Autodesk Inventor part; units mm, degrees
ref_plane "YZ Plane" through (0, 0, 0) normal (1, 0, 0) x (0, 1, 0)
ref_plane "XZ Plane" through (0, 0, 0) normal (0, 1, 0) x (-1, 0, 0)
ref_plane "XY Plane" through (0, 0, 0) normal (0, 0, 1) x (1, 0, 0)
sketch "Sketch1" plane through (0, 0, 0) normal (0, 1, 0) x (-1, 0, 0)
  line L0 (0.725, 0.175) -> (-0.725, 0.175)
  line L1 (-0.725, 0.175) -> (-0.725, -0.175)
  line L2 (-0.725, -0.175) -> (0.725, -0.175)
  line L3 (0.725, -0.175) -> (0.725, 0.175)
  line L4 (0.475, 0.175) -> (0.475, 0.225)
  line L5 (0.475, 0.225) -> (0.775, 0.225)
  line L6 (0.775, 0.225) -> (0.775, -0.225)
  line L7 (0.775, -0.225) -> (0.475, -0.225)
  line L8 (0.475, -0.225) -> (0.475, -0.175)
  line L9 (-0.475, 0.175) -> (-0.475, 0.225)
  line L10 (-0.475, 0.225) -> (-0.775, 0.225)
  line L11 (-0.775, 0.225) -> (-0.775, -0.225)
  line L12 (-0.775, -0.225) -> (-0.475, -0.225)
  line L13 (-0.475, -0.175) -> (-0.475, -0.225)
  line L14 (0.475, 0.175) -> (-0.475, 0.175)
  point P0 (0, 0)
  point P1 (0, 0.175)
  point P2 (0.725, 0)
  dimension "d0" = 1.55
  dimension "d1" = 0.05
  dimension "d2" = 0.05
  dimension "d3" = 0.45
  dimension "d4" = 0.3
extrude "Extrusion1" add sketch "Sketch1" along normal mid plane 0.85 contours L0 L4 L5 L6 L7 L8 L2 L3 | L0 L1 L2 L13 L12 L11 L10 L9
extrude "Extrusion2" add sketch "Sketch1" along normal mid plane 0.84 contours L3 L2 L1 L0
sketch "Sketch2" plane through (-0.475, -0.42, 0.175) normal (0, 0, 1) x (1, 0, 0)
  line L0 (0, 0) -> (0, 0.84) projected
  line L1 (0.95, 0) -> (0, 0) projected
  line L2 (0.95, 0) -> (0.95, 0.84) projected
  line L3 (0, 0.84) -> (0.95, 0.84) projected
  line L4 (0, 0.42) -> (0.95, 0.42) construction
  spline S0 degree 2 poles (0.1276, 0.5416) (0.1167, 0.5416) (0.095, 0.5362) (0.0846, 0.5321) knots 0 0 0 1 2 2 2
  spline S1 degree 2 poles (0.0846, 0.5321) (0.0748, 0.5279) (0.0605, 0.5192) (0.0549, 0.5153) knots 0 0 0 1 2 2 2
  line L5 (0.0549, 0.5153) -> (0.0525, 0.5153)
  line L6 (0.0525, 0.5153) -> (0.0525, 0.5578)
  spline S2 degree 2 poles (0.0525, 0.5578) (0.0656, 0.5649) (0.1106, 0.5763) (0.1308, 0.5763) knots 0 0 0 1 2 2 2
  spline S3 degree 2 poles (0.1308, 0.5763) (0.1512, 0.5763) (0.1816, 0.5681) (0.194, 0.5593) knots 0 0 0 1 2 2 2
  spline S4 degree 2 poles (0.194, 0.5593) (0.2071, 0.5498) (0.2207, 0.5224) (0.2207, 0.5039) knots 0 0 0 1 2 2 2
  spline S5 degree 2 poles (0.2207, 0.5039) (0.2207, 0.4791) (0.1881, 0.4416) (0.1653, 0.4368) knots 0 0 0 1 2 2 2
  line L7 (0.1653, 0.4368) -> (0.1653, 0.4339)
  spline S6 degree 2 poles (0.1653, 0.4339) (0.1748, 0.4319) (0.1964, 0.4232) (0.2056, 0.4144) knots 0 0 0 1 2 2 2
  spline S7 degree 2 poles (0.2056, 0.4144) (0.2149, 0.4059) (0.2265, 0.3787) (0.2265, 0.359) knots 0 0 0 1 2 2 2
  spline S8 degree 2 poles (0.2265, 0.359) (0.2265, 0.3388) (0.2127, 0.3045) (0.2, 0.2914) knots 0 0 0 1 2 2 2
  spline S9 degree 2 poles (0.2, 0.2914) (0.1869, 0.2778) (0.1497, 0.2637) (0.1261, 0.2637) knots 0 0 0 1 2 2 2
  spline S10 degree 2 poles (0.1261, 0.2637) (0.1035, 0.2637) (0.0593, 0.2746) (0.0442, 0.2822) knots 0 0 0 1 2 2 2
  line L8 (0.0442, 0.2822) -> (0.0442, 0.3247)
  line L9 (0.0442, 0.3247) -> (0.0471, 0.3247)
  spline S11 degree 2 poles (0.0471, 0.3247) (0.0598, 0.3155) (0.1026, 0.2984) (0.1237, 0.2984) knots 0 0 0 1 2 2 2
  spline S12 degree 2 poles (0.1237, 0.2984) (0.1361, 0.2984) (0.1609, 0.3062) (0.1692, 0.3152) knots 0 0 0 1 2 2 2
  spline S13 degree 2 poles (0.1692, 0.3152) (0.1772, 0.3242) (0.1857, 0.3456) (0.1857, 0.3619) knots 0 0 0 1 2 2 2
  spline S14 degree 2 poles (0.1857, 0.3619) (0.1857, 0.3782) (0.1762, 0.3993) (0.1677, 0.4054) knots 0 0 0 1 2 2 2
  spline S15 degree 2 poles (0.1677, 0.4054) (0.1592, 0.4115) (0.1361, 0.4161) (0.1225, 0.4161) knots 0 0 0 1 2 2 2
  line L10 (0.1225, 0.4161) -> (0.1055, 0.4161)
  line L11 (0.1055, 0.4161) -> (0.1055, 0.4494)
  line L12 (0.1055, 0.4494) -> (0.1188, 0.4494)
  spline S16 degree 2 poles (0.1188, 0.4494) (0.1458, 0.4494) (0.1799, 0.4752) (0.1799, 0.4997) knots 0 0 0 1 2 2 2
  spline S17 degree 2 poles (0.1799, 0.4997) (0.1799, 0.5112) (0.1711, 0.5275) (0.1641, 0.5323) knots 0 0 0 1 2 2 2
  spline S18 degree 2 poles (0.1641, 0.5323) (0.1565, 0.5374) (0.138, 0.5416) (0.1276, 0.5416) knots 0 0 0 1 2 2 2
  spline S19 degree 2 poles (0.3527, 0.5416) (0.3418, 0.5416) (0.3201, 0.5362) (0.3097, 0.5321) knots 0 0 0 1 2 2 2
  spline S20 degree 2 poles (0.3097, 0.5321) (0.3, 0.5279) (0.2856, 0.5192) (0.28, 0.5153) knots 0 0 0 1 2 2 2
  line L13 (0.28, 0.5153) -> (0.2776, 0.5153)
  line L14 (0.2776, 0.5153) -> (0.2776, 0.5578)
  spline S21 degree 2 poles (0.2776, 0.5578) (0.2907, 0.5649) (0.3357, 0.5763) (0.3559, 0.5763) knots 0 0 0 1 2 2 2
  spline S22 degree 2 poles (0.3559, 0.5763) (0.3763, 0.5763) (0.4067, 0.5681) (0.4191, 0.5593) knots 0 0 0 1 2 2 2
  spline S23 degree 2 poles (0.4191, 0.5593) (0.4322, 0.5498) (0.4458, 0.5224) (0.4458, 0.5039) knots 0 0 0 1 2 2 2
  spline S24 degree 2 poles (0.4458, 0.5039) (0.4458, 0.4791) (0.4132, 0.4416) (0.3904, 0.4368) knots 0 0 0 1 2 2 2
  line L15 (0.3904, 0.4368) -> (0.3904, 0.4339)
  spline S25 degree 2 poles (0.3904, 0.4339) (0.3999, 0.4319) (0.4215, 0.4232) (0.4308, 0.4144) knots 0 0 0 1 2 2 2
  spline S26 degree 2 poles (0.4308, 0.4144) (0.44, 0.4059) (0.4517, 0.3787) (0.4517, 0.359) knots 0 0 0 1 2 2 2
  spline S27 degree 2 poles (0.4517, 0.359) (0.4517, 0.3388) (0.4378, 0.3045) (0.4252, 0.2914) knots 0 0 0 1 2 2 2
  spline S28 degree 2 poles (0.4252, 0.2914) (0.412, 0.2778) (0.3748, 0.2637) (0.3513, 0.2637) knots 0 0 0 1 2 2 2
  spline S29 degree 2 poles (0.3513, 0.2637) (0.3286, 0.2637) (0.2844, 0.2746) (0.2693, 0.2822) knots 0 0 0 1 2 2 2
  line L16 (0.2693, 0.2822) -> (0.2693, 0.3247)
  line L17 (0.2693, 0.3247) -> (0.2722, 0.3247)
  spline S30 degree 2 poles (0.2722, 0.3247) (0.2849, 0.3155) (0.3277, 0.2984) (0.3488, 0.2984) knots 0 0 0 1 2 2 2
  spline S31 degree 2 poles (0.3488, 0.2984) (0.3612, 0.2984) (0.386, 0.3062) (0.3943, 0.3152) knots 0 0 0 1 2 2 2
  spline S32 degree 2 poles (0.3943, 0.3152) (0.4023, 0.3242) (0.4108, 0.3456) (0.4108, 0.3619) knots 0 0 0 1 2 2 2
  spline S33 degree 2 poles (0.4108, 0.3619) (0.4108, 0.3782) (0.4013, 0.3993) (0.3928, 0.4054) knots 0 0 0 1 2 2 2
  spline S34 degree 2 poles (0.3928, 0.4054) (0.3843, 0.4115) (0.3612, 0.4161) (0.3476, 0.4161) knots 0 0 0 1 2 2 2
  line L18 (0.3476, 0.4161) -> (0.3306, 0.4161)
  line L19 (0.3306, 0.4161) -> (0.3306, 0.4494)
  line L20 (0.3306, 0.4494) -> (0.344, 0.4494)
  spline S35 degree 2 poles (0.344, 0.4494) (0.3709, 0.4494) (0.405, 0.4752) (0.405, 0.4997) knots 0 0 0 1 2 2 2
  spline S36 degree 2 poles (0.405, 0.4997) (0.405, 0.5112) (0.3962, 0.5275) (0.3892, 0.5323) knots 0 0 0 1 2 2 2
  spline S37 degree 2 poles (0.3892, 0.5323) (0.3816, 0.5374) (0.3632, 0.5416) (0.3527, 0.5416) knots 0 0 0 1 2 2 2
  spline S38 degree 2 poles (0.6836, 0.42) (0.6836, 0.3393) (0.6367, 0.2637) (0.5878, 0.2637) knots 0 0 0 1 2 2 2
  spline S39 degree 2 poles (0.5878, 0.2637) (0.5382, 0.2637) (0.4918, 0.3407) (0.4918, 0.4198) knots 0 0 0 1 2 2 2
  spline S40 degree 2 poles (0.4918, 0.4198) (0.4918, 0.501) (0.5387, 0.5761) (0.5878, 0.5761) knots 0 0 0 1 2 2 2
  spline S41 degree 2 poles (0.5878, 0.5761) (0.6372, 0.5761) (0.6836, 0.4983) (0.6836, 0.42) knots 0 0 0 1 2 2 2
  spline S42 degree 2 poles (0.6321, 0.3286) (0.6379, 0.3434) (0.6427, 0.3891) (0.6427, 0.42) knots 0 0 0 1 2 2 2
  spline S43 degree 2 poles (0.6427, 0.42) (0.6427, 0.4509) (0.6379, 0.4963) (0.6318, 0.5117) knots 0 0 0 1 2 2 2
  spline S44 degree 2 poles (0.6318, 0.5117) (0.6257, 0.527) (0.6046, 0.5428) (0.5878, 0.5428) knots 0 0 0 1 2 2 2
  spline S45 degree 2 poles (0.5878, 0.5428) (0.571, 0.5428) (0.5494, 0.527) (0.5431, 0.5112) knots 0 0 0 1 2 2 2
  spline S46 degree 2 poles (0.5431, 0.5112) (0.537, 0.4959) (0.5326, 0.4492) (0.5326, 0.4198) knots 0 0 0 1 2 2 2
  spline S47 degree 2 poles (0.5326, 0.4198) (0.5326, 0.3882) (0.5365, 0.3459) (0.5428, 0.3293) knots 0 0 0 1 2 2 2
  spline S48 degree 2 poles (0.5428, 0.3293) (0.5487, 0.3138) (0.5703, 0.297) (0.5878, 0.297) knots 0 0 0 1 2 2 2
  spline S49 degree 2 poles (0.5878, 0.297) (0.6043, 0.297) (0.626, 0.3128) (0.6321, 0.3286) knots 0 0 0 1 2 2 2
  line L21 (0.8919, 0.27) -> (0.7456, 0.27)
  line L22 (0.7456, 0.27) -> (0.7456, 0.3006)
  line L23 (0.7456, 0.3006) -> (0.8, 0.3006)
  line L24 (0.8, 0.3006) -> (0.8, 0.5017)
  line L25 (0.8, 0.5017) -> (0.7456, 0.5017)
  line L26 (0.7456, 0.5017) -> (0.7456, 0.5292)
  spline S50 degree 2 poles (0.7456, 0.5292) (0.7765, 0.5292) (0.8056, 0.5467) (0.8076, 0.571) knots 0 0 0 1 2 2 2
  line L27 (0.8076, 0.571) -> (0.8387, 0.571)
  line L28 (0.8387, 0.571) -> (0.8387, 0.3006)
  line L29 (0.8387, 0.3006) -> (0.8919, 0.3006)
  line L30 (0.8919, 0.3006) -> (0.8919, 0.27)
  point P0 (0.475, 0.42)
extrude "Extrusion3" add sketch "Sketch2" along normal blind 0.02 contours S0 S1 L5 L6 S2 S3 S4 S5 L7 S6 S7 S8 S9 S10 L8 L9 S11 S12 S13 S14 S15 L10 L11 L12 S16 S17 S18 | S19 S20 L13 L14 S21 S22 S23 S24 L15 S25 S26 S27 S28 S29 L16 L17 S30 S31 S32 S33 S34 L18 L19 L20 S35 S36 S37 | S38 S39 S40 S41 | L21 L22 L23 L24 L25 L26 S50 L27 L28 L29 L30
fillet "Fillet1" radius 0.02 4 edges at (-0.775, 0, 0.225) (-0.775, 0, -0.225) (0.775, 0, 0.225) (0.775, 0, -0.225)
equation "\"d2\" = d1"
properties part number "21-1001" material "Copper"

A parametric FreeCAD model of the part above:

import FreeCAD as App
import Part
import Sketcher


def edges_at(feature, points):
    """Names of the edges that pass closest to the given points."""
    edges = feature.Shape.Edges
    near = lambda p: min(range(len(edges)), key=lambda i: edges[i].distToShape(Part.Vertex(*p))[0])
    return sorted({f"Edge{near(p) + 1}" for p in points})


def add_polygon(sketch, points):
    """Adds a closed chain of lines whose ends are joined by coincident constraints."""
    first, n = sketch.GeometryCount, len(points)
    for a, b in zip(points, points[1:] + points[:1]):
        sketch.addGeometry(Part.LineSegment(App.Vector(*a, 0), App.Vector(*b, 0)), False)
    for i in range(n):
        sketch.addConstraint(Sketcher.Constraint("Coincident", first + i, 2, first + (i + 1) % n, 1))

doc = App.newDocument("Part")
body = doc.addObject("PartDesign::Body", "Body")
body.AllowCompound = True

# Sketch on XZ plane
sketch1 = doc.addObject("Sketcher::SketchObject", "Sketch")
body.addObject(sketch1)
sketch1.AttachmentSupport = (doc.XZ_Plane, [""])
sketch1.MapMode = "FlatFace"
add_polygon(sketch1, [(-0.47, 0.17), (-0.72, 0.17), (-0.72, -0.17), (-0.47, -0.17), (-0.47, -0.23), (-0.78, -0.23), (-0.78, 0.23), (-0.47, 0.23)])  # lines 0-7
add_polygon(sketch1, [(0.72, 0.17), (0.47, 0.17), (0.47, 0.23), (0.78, 0.23), (0.78, -0.23), (0.47, -0.23), (0.47, -0.17), (0.72, -0.17)])  # lines 8-15
sketch1.addConstraint(Sketcher.Constraint("Horizontal", 0))
sketch1.addConstraint(Sketcher.Constraint("Vertical", 1))
sketch1.addConstraint(Sketcher.Constraint("Horizontal", 2))
sketch1.addConstraint(Sketcher.Constraint("Vertical", 3))
sketch1.addConstraint(Sketcher.Constraint("Horizontal", 4))
sketch1.addConstraint(Sketcher.Constraint("Vertical", 5))
sketch1.addConstraint(Sketcher.Constraint("Horizontal", 6))
sketch1.addConstraint(Sketcher.Constraint("Vertical", 7))
sketch1.addConstraint(Sketcher.Constraint("Horizontal", 8))
sketch1.addConstraint(Sketcher.Constraint("Vertical", 9))
sketch1.addConstraint(Sketcher.Constraint("Horizontal", 10))
sketch1.addConstraint(Sketcher.Constraint("Vertical", 11))
sketch1.addConstraint(Sketcher.Constraint("Horizontal", 12))
sketch1.addConstraint(Sketcher.Constraint("Vertical", 13))
sketch1.addConstraint(Sketcher.Constraint("Horizontal", 14))
sketch1.addConstraint(Sketcher.Constraint("Vertical", 15))
sketch1.addConstraint(Sketcher.Constraint("Symmetric", 2, 2, 8, 2, -1, 1))
sketch1.addConstraint(Sketcher.Constraint("Symmetric", 4, 2, 10, 2, -1, 1))
sketch1.addConstraint(Sketcher.Constraint("Symmetric", 6, 2, 12, 2, -1, 1))
sketch1.addConstraint(Sketcher.Constraint("Symmetric", 0, 2, 14, 2, -1, 1))
sketch1.addConstraint(Sketcher.Constraint("Symmetric", 7, 2, 8, 2, -2))
sketch1.addConstraint(Sketcher.Constraint("Horizontal", 6, 2, 9, 2))
sketch1.addConstraint(Sketcher.Constraint("DistanceX", 4, 2, 4, 1, 0.3))
sketch1.addConstraint(Sketcher.Constraint("DistanceY", 3, 2, 3, 1, 0.05))
sketch1.addConstraint(Sketcher.Constraint("DistanceY", 5, 1, 5, 2, 0.45))
sketch1.addConstraint(Sketcher.Constraint("DistanceX", 4, 2, 1, 2, 0.05))
sketch1.addConstraint(Sketcher.Constraint("DistanceX", 0, 2, 8, 2, 1.2))
pad1 = doc.addObject("PartDesign::Pad", "Pad")
body.addObject(pad1)
pad1.Profile = sketch1
pad1.Length = 0.85
pad1.Midplane = True

# Sketch on XZ plane
sketch2 = doc.addObject("Sketcher::SketchObject", "Sketch001")
body.addObject(sketch2)
sketch2.AttachmentSupport = (doc.XZ_Plane, [""])
sketch2.MapMode = "FlatFace"
add_polygon(sketch2, [(-0.72, -0.17), (-0.72, 0.17), (0.72, 0.17), (0.72, -0.17)])  # lines 0-3
sketch2.addConstraint(Sketcher.Constraint("Vertical", 0))
sketch2.addConstraint(Sketcher.Constraint("Horizontal", 1))
sketch2.addConstraint(Sketcher.Constraint("Vertical", 2))
sketch2.addConstraint(Sketcher.Constraint("Horizontal", 3))
sketch2.addConstraint(Sketcher.Constraint("Symmetric", 0, 2, 2, 2, -1, 1))
sketch2.addConstraint(Sketcher.Constraint("DistanceX", 1, 1, 1, 2, 1.45))
sketch2.addConstraint(Sketcher.Constraint("DistanceY", 0, 1, 0, 2, 0.35))
pad2 = doc.addObject("PartDesign::Pad", "Pad001")
body.addObject(pad2)
pad2.Profile = sketch2
pad2.Length = 0.84
pad2.Midplane = True

# Sketch on XY plane
sketch3 = doc.addObject("Sketcher::SketchObject", "Sketch002")
body.addObject(sketch3)
sketch3.AttachmentSupport = (doc.XY_Plane, [""])
sketch3.MapMode = "FlatFace"
sketch3.AttachmentOffset = App.Placement(App.Vector(0, 0, 0.175), App.Rotation())
sketch3.addGeometry(Part.BSplineCurve([App.Vector(-0.3474, 0.1216, 0), App.Vector(-0.3583, 0.1216, 0), App.Vector(-0.38, 0.1162, 0), App.Vector(-0.3904, 0.1121, 0)], [3, 1, 3], [0, 1, 2], False, 2, [1, 1, 1, 1], False), False)
sketch3.addGeometry(Part.BSplineCurve([App.Vector(-0.3109, 0.1123, 0), App.Vector(-0.3185, 0.1174, 0), App.Vector(-0.337, 0.1216, 0), App.Vector(-0.3474, 0.1216, 0)], [3, 1, 3], [0, 1, 2], False, 2, [1, 1, 1, 1], False), False)
sketch3.addGeometry(Part.BSplineCurve([App.Vector(-0.2951, 0.0797, 0), App.Vector(-0.2951, 0.0912, 0), App.Vector(-0.3039, 0.1075, 0), App.Vector(-0.3109, 0.1123, 0)], [3, 1, 3], [0, 1, 2], False, 2, [1, 1, 1, 1], False), False)
sketch3.addGeometry(Part.BSplineCurve([App.Vector(-0.3562, 0.0294, 0), App.Vector(-0.3292, 0.0294, 0), App.Vector(-0.2951, 0.0552, 0), App.Vector(-0.2951, 0.0797, 0)], [3, 1, 3], [0, 1, 2], False, 2, [1, 1, 1, 1], False), False)
sketch3.addGeometry(Part.LineSegment(App.Vector(-0.3562, 0.0294, 0), App.Vector(-0.3695, 0.0294, 0)), False)
sketch3.addGeometry(Part.LineSegment(App.Vector(-0.3695, 0.0294, 0), App.Vector(-0.3695, -0.0039, 0)), False)
sketch3.addGeometry(Part.LineSegment(App.Vector(-0.3695, -0.0039, 0), App.Vector(-0.3525, -0.0039, 0)), False)
sketch3.addGeometry(Part.BSplineCurve([App.Vector(-0.3073, -0.0146, 0), App.Vector(-0.3158, -0.0085, 0), App.Vector(-0.3389, -0.0039, 0), App.Vector(-0.3525, -0.0039, 0)], [3, 1, 3], [0, 1, 2], False, 2, [1, 1, 1, 1], False), False)
sketch3.addGeometry(Part.BSplineCurve([App.Vector(-0.2893, -0.0581, 0), App.Vector(-0.2893, -0.0418, 0), App.Vector(-0.2988, -0.0207, 0), App.Vector(-0.3073, -0.0146, 0)], [3, 1, 3], [0, 1, 2], False, 2, [1, 1, 1, 1], False), False)
sketch3.addGeometry(Part.BSplineCurve([App.Vector(-0.3058, -0.1048, 0), App.Vector(-0.2978, -0.0958, 0), App.Vector(-0.2893, -0.0744, 0), App.Vector(-0.2893, -0.0581, 0)], [3, 1, 3], [0, 1, 2], False, 2, [1, 1, 1, 1], False), False)
sketch3.addGeometry(Part.BSplineCurve([App.Vector(-0.3513, -0.1216, 0), App.Vector(-0.3389, -0.1216, 0), App.Vector(-0.3141, -0.1138, 0), App.Vector(-0.3058, -0.1048, 0)], [3, 1, 3], [0, 1, 2], False, 2, [1, 1, 1, 1], False), False)
sketch3.addGeometry(Part.BSplineCurve([App.Vector(-0.4279, -0.0953, 0), App.Vector(-0.4152, -0.1045, 0), App.Vector(-0.3724, -0.1216, 0), App.Vector(-0.3513, -0.1216, 0)], [3, 1, 3], [0, 1, 2], False, 2, [1, 1, 1, 1], False), False)
sketch3.addGeometry(Part.LineSegment(App.Vector(-0.4279, -0.0953, 0), App.Vector(-0.4308, -0.0953, 0)), False)
sketch3.addGeometry(Part.LineSegment(App.Vector(-0.4308, -0.0953, 0), App.Vector(-0.4308, -0.1378, 0)), False)
sketch3.addGeometry(Part.BSplineCurve([App.Vector(-0.3489, -0.1563, 0), App.Vector(-0.3715, -0.1563, 0), App.Vector(-0.4157, -0.1454, 0), App.Vector(-0.4308, -0.1378, 0)], [3, 1, 3], [0, 1, 2], False, 2, [1, 1, 1, 1], False), False)
sketch3.addGeometry(Part.BSplineCurve([App.Vector(-0.275, -0.1286, 0), App.Vector(-0.2881, -0.1422, 0), App.Vector(-0.3253, -0.1563, 0), App.Vector(-0.3489, -0.1563, 0)], [3, 1, 3], [0, 1, 2], False, 2, [1, 1, 1, 1], False), False)
sketch3.addGeometry(Part.BSplineCurve([App.Vector(-0.2485, -0.061, 0), App.Vector(-0.2485, -0.0812, 0), App.Vector(-0.2623, -0.1155, 0), App.Vector(-0.275, -0.1286, 0)], [3, 1, 3], [0, 1, 2], False, 2, [1, 1, 1, 1], False), False)
sketch3.addGeometry(Part.BSplineCurve([App.Vector(-0.2694, -0.0056, 0), App.Vector(-0.2601, -0.0141, 0), App.Vector(-0.2485, -0.0413, 0), App.Vector(-0.2485, -0.061, 0)], [3, 1, 3], [0, 1, 2], False, 2, [1, 1, 1, 1], False), False)
sketch3.addGeometry(Part.BSplineCurve([App.Vector(-0.3097, 0.0139, 0), App.Vector(-0.3002, 0.0119, 0), App.Vector(-0.2786, 0.0032, 0), App.Vector(-0.2694, -0.0056, 0)], [3, 1, 3], [0, 1, 2], False, 2, [1, 1, 1, 1], False), False)
sketch3.addGeometry(Part.LineSegment(App.Vector(-0.3097, 0.0139, 0), App.Vector(-0.3097, 0.0168, 0)), False)
sketch3.addGeometry(Part.BSplineCurve([App.Vector(-0.2543, 0.0839, 0), App.Vector(-0.2543, 0.0591, 0), App.Vector(-0.2869, 0.0216, 0), App.Vector(-0.3097, 0.0168, 0)], [3, 1, 3], [0, 1, 2], False, 2, [1, 1, 1, 1], False), False)
sketch3.addGeometry(Part.BSplineCurve([App.Vector(-0.281, 0.1393, 0), App.Vector(-0.2679, 0.1298, 0), App.Vector(-0.2543, 0.1024, 0), App.Vector(-0.2543, 0.0839, 0)], [3, 1, 3], [0, 1, 2], False, 2, [1, 1, 1, 1], False), False)
sketch3.addGeometry(Part.BSplineCurve([App.Vector(-0.3442, 0.1563, 0), App.Vector(-0.3238, 0.1563, 0), App.Vector(-0.2934, 0.1481, 0), App.Vector(-0.281, 0.1393, 0)], [3, 1, 3], [0, 1, 2], False, 2, [1, 1, 1, 1], False), False)
sketch3.addGeometry(Part.BSplineCurve([App.Vector(-0.4225, 0.1378, 0), App.Vector(-0.4094, 0.1449, 0), App.Vector(-0.3644, 0.1563, 0), App.Vector(-0.3442, 0.1563, 0)], [3, 1, 3], [0, 1, 2], False, 2, [1, 1, 1, 1], False), False)
sketch3.addGeometry(Part.LineSegment(App.Vector(-0.4225, 0.1378, 0), App.Vector(-0.4225, 0.0953, 0)), False)
sketch3.addGeometry(Part.LineSegment(App.Vector(-0.4225, 0.0953, 0), App.Vector(-0.4201, 0.0953, 0)), False)
sketch3.addGeometry(Part.BSplineCurve([App.Vector(-0.3904, 0.1121, 0), App.Vector(-0.4002, 0.1079, 0), App.Vector(-0.4145, 0.0992, 0), App.Vector(-0.4201, 0.0953, 0)], [3, 1, 3], [0, 1, 2], False, 2, [1, 1, 1, 1], False), False)
sketch3.addGeometry(Part.BSplineCurve([App.Vector(-0.1223, 0.1216, 0), App.Vector(-0.1332, 0.1216, 0), App.Vector(-0.1549, 0.1162, 0), App.Vector(-0.1653, 0.1121, 0)], [3, 1, 3], [0, 1, 2], False, 2, [1, 1, 1, 1], False), False)
sketch3.addGeometry(Part.BSplineCurve([App.Vector(-0.0858, 0.1123, 0), App.Vector(-0.0934, 0.1174, 0), App.Vector(-0.1118, 0.1216, 0), App.Vector(-0.1223, 0.1216, 0)], [3, 1, 3], [0, 1, 2], False, 2, [1, 1, 1, 1], False), False)
sketch3.addGeometry(Part.BSplineCurve([App.Vector(-0.07, 0.0797, 0), App.Vector(-0.07, 0.0912, 0), App.Vector(-0.0788, 0.1075, 0), App.Vector(-0.0858, 0.1123, 0)], [3, 1, 3], [0, 1, 2], False, 2, [1, 1, 1, 1], False), False)
sketch3.addGeometry(Part.BSplineCurve([App.Vector(-0.131, 0.0294, 0), App.Vector(-0.1041, 0.0294, 0), App.Vector(-0.07, 0.0552, 0), App.Vector(-0.07, 0.0797, 0)], [3, 1, 3], [0, 1, 2], False, 2, [1, 1, 1, 1], False), False)
sketch3.addGeometry(Part.LineSegment(App.Vector(-0.131, 0.0294, 0), App.Vector(-0.1444, 0.0294, 0)), False)
sketch3.addGeometry(Part.LineSegment(App.Vector(-0.1444, 0.0294, 0), App.Vector(-0.1444, -0.0039, 0)), False)
sketch3.addGeometry(Part.LineSegment(App.Vector(-0.1444, -0.0039, 0), App.Vector(-0.1274, -0.0039, 0)), False)
sketch3.addGeometry(Part.BSplineCurve([App.Vector(-0.0822, -0.0146, 0), App.Vector(-0.0907, -0.0085, 0), App.Vector(-0.1138, -0.0039, 0), App.Vector(-0.1274, -0.0039, 0)], [3, 1, 3], [0, 1, 2], False, 2, [1, 1, 1, 1], False), False)
sketch3.addGeometry(Part.BSplineCurve([App.Vector(-0.0642, -0.0581, 0), App.Vector(-0.0642, -0.0418, 0), App.Vector(-0.0737, -0.0207, 0), App.Vector(-0.0822, -0.0146, 0)], [3, 1, 3], [0, 1, 2], False, 2, [1, 1, 1, 1], False), False)
sketch3.addGeometry(Part.BSplineCurve([App.Vector(-0.0807, -0.1048, 0), App.Vector(-0.0727, -0.0958, 0), App.Vector(-0.0642, -0.0744, 0), App.Vector(-0.0642, -0.0581, 0)], [3, 1, 3], [0, 1, 2], False, 2, [1, 1, 1, 1], False), False)
sketch3.addGeometry(Part.BSplineCurve([App.Vector(-0.1262, -0.1216, 0), App.Vector(-0.1138, -0.1216, 0), App.Vector(-0.089, -0.1138, 0), App.Vector(-0.0807, -0.1048, 0)], [3, 1, 3], [0, 1, 2], False, 2, [1, 1, 1, 1], False), False)
sketch3.addGeometry(Part.BSplineCurve([App.Vector(-0.2028, -0.0953, 0), App.Vector(-0.1901, -0.1045, 0), App.Vector(-0.1473, -0.1216, 0), App.Vector(-0.1262, -0.1216, 0)], [3, 1, 3], [0, 1, 2], False, 2, [1, 1, 1, 1], False), False)
sketch3.addGeometry(Part.LineSegment(App.Vector(-0.2028, -0.0953, 0), App.Vector(-0.2057, -0.0953, 0)), False)
sketch3.addGeometry(Part.LineSegment(App.Vector(-0.2057, -0.0953, 0), App.Vector(-0.2057, -0.1378, 0)), False)
sketch3.addGeometry(Part.BSplineCurve([App.Vector(-0.1237, -0.1563, 0), App.Vector(-0.1464, -0.1563, 0), App.Vector(-0.1906, -0.1454, 0), App.Vector(-0.2057, -0.1378, 0)], [3, 1, 3], [0, 1, 2], False, 2, [1, 1, 1, 1], False), False)
sketch3.addGeometry(Part.BSplineCurve([App.Vector(-0.0498, -0.1286, 0), App.Vector(-0.063, -0.1422, 0), App.Vector(-0.1002, -0.1563, 0), App.Vector(-0.1237, -0.1563, 0)], [3, 1, 3], [0, 1, 2], False, 2, [1, 1, 1, 1], False), False)
sketch3.addGeometry(Part.BSplineCurve([App.Vector(-0.0233, -0.061, 0), App.Vector(-0.0233, -0.0812, 0), App.Vector(-0.0372, -0.1155, 0), App.Vector(-0.0498, -0.1286, 0)], [3, 1, 3], [0, 1, 2], False, 2, [1, 1, 1, 1], False), False)
sketch3.addGeometry(Part.BSplineCurve([App.Vector(-0.0442, -0.0056, 0), App.Vector(-0.035, -0.0141, 0), App.Vector(-0.0233, -0.0413, 0), App.Vector(-0.0233, -0.061, 0)], [3, 1, 3], [0, 1, 2], False, 2, [1, 1, 1, 1], False), False)
sketch3.addGeometry(Part.BSplineCurve([App.Vector(-0.0846, 0.0139, 0), App.Vector(-0.0751, 0.0119, 0), App.Vector(-0.0535, 0.0032, 0), App.Vector(-0.0442, -0.0056, 0)], [3, 1, 3], [0, 1, 2], False, 2, [1, 1, 1, 1], False), False)
sketch3.addGeometry(Part.LineSegment(App.Vector(-0.0846, 0.0139, 0), App.Vector(-0.0846, 0.0168, 0)), False)
sketch3.addGeometry(Part.BSplineCurve([App.Vector(-0.0292, 0.0839, 0), App.Vector(-0.0292, 0.0591, 0), App.Vector(-0.0618, 0.0216, 0), App.Vector(-0.0846, 0.0168, 0)], [3, 1, 3], [0, 1, 2], False, 2, [1, 1, 1, 1], False), False)
sketch3.addGeometry(Part.BSplineCurve([App.Vector(-0.0559, 0.1393, 0), App.Vector(-0.0428, 0.1298, 0), App.Vector(-0.0292, 0.1024, 0), App.Vector(-0.0292, 0.0839, 0)], [3, 1, 3], [0, 1, 2], False, 2, [1, 1, 1, 1], False), False)
sketch3.addGeometry(Part.BSplineCurve([App.Vector(-0.1191, 0.1563, 0), App.Vector(-0.0987, 0.1563, 0), App.Vector(-0.0683, 0.1481, 0), App.Vector(-0.0559, 0.1393, 0)], [3, 1, 3], [0, 1, 2], False, 2, [1, 1, 1, 1], False), False)
sketch3.addGeometry(Part.BSplineCurve([App.Vector(-0.1974, 0.1378, 0), App.Vector(-0.1843, 0.1449, 0), App.Vector(-0.1393, 0.1563, 0), App.Vector(-0.1191, 0.1563, 0)], [3, 1, 3], [0, 1, 2], False, 2, [1, 1, 1, 1], False), False)
sketch3.addGeometry(Part.LineSegment(App.Vector(-0.1974, 0.1378, 0), App.Vector(-0.1974, 0.0953, 0)), False)
sketch3.addGeometry(Part.LineSegment(App.Vector(-0.1974, 0.0953, 0), App.Vector(-0.195, 0.0953, 0)), False)
sketch3.addGeometry(Part.BSplineCurve([App.Vector(-0.1653, 0.1121, 0), App.Vector(-0.175, 0.1079, 0), App.Vector(-0.1894, 0.0992, 0), App.Vector(-0.195, 0.0953, 0)], [3, 1, 3], [0, 1, 2], False, 2, [1, 1, 1, 1], False), False)
sketch3.addGeometry(Part.BSplineCurve([App.Vector(0.2086, 0, 0), App.Vector(0.2086, -0.0807, 0), App.Vector(0.1617, -0.1563, 0), App.Vector(0.1128, -0.1563, 0)], [3, 1, 3], [0, 1, 2], False, 2, [1, 1, 1, 1], False), False)
sketch3.addGeometry(Part.BSplineCurve([App.Vector(0.1128, 0.1561, 0), App.Vector(0.1622, 0.1561, 0), App.Vector(0.2086, 0.0783, 0), App.Vector(0.2086, 0, 0)], [3, 1, 3], [0, 1, 2], False, 2, [1, 1, 1, 1], False), False)
sketch3.addGeometry(Part.BSplineCurve([App.Vector(0.0168, -0.0002, 0), App.Vector(0.0168, 0.081, 0), App.Vector(0.0637, 0.1561, 0), App.Vector(0.1128, 0.1561, 0)], [3, 1, 3], [0, 1, 2], False, 2, [1, 1, 1, 1], False), False)
sketch3.addGeometry(Part.BSplineCurve([App.Vector(0.1128, -0.1563, 0), App.Vector(0.0632, -0.1563, 0), App.Vector(0.0168, -0.0793, 0), App.Vector(0.0168, -0.0002, 0)], [3, 1, 3], [0, 1, 2], False, 2, [1, 1, 1, 1], False), False)
sketch3.addGeometry(Part.BSplineCurve([App.Vector(0.1571, -0.0914, 0), App.Vector(0.1629, -0.0766, 0), App.Vector(0.1677, -0.0309, 0), App.Vector(0.1677, 0, 0)], [3, 1, 3], [0, 1, 2], False, 2, [1, 1, 1, 1], False), False)
sketch3.addGeometry(Part.BSplineCurve([App.Vector(0.1128, -0.123, 0), App.Vector(0.1293, -0.123, 0), App.Vector(0.151, -0.1072, 0), App.Vector(0.1571, -0.0914, 0)], [3, 1, 3], [0, 1, 2], False, 2, [1, 1, 1, 1], False), False)
sketch3.addGeometry(Part.BSplineCurve([App.Vector(0.0678, -0.0907, 0), App.Vector(0.0737, -0.1062, 0), App.Vector(0.0953, -0.123, 0), App.Vector(0.1128, -0.123, 0)], [3, 1, 3], [0, 1, 2], False, 2, [1, 1, 1, 1], False), False)
sketch3.addGeometry(Part.BSplineCurve([App.Vector(0.0576, -0.0002, 0), App.Vector(0.0576, -0.0318, 0), App.Vector(0.0615, -0.0741, 0), App.Vector(0.0678, -0.0907, 0)], [3, 1, 3], [0, 1, 2], False, 2, [1, 1, 1, 1], False), False)
sketch3.addGeometry(Part.BSplineCurve([App.Vector(0.0681, 0.0912, 0), App.Vector(0.062, 0.0759, 0), App.Vector(0.0576, 0.0292, 0), App.Vector(0.0576, -0.0002, 0)], [3, 1, 3], [0, 1, 2], False, 2, [1, 1, 1, 1], False), False)
sketch3.addGeometry(Part.BSplineCurve([App.Vector(0.1128, 0.1228, 0), App.Vector(0.096, 0.1228, 0), App.Vector(0.0744, 0.107, 0), App.Vector(0.0681, 0.0912, 0)], [3, 1, 3], [0, 1, 2], False, 2, [1, 1, 1, 1], False), False)
sketch3.addGeometry(Part.BSplineCurve([App.Vector(0.1568, 0.0917, 0), App.Vector(0.1507, 0.107, 0), App.Vector(0.1296, 0.1228, 0), App.Vector(0.1128, 0.1228, 0)], [3, 1, 3], [0, 1, 2], False, 2, [1, 1, 1, 1], False), False)
sketch3.addGeometry(Part.BSplineCurve([App.Vector(0.1677, 0, 0), App.Vector(0.1677, 0.0309, 0), App.Vector(0.1629, 0.0763, 0), App.Vector(0.1568, 0.0917, 0)], [3, 1, 3], [0, 1, 2], False, 2, [1, 1, 1, 1], False), False)
sketch3.addGeometry(Part.LineSegment(App.Vector(0.2706, -0.15, 0), App.Vector(0.4169, -0.15, 0)), False)
sketch3.addGeometry(Part.LineSegment(App.Vector(0.4169, -0.15, 0), App.Vector(0.4169, -0.1194, 0)), False)
sketch3.addGeometry(Part.LineSegment(App.Vector(0.4169, -0.1194, 0), App.Vector(0.3637, -0.1194, 0)), False)
sketch3.addGeometry(Part.LineSegment(App.Vector(0.3637, -0.1194, 0), App.Vector(0.3637, 0.151, 0)), False)
sketch3.addGeometry(Part.LineSegment(App.Vector(0.3637, 0.151, 0), App.Vector(0.3326, 0.151, 0)), False)
sketch3.addGeometry(Part.BSplineCurve([App.Vector(0.2706, 0.1092, 0), App.Vector(0.3015, 0.1092, 0), App.Vector(0.3306, 0.1267, 0), App.Vector(0.3326, 0.151, 0)], [3, 1, 3], [0, 1, 2], False, 2, [1, 1, 1, 1], False), False)
sketch3.addGeometry(Part.LineSegment(App.Vector(0.2706, 0.1092, 0), App.Vector(0.2706, 0.0817, 0)), False)
sketch3.addGeometry(Part.LineSegment(App.Vector(0.2706, 0.0817, 0), App.Vector(0.325, 0.0817, 0)), False)
sketch3.addGeometry(Part.LineSegment(App.Vector(0.325, 0.0817, 0), App.Vector(0.325, -0.1194, 0)), False)
sketch3.addGeometry(Part.LineSegment(App.Vector(0.325, -0.1194, 0), App.Vector(0.2706, -0.1194, 0)), False)
sketch3.addGeometry(Part.LineSegment(App.Vector(0.2706, -0.1194, 0), App.Vector(0.2706, -0.15, 0)), False)
sketch3.addConstraint(Sketcher.Constraint("Block", 0))
sketch3.addConstraint(Sketcher.Constraint("Block", 1))
sketch3.addConstraint(Sketcher.Constraint("Block", 2))
sketch3.addConstraint(Sketcher.Constraint("Block", 3))
sketch3.addConstraint(Sketcher.Constraint("Block", 7))
sketch3.addConstraint(Sketcher.Constraint("Block", 8))
sketch3.addConstraint(Sketcher.Constraint("Block", 9))
sketch3.addConstraint(Sketcher.Constraint("Block", 10))
sketch3.addConstraint(Sketcher.Constraint("Block", 11))
sketch3.addConstraint(Sketcher.Constraint("Block", 14))
sketch3.addConstraint(Sketcher.Constraint("Block", 15))
sketch3.addConstraint(Sketcher.Constraint("Block", 16))
sketch3.addConstraint(Sketcher.Constraint("Block", 17))
sketch3.addConstraint(Sketcher.Constraint("Block", 18))
sketch3.addConstraint(Sketcher.Constraint("Block", 20))
sketch3.addConstraint(Sketcher.Constraint("Block", 21))
sketch3.addConstraint(Sketcher.Constraint("Block", 22))
sketch3.addConstraint(Sketcher.Constraint("Block", 23))
sketch3.addConstraint(Sketcher.Constraint("Block", 26))
sketch3.addConstraint(Sketcher.Constraint("Block", 27))
sketch3.addConstraint(Sketcher.Constraint("Block", 28))
sketch3.addConstraint(Sketcher.Constraint("Block", 29))
sketch3.addConstraint(Sketcher.Constraint("Block", 30))
sketch3.addConstraint(Sketcher.Constraint("Block", 34))
sketch3.addConstraint(Sketcher.Constraint("Block", 35))
sketch3.addConstraint(Sketcher.Constraint("Block", 36))
sketch3.addConstraint(Sketcher.Constraint("Block", 37))
sketch3.addConstraint(Sketcher.Constraint("Block", 38))
sketch3.addConstraint(Sketcher.Constraint("Block", 41))
sketch3.addConstraint(Sketcher.Constraint("Block", 42))
sketch3.addConstraint(Sketcher.Constraint("Block", 43))
sketch3.addConstraint(Sketcher.Constraint("Block", 44))
sketch3.addConstraint(Sketcher.Constraint("Block", 45))
sketch3.addConstraint(Sketcher.Constraint("Block", 47))
sketch3.addConstraint(Sketcher.Constraint("Block", 48))
sketch3.addConstraint(Sketcher.Constraint("Block", 49))
sketch3.addConstraint(Sketcher.Constraint("Block", 50))
sketch3.addConstraint(Sketcher.Constraint("Block", 53))
sketch3.addConstraint(Sketcher.Constraint("Block", 54))
sketch3.addConstraint(Sketcher.Constraint("Block", 55))
sketch3.addConstraint(Sketcher.Constraint("Block", 56))
sketch3.addConstraint(Sketcher.Constraint("Block", 57))
sketch3.addConstraint(Sketcher.Constraint("Block", 58))
sketch3.addConstraint(Sketcher.Constraint("Block", 59))
sketch3.addConstraint(Sketcher.Constraint("Block", 60))
sketch3.addConstraint(Sketcher.Constraint("Block", 61))
sketch3.addConstraint(Sketcher.Constraint("Block", 62))
sketch3.addConstraint(Sketcher.Constraint("Block", 63))
sketch3.addConstraint(Sketcher.Constraint("Block", 64))
sketch3.addConstraint(Sketcher.Constraint("Block", 65))
sketch3.addConstraint(Sketcher.Constraint("Block", 71))
sketch3.addConstraint(Sketcher.Constraint("Coincident", 3, 1, 4, 1))
sketch3.addConstraint(Sketcher.Constraint("Coincident", 4, 2, 5, 1))
sketch3.addConstraint(Sketcher.Constraint("Coincident", 5, 2, 6, 1))
sketch3.addConstraint(Sketcher.Constraint("Coincident", 6, 2, 7, 2))
sketch3.addConstraint(Sketcher.Constraint("Coincident", 11, 1, 12, 1))
sketch3.addConstraint(Sketcher.Constraint("Coincident", 12, 2, 13, 1))
sketch3.addConstraint(Sketcher.Constraint("Coincident", 13, 2, 14, 2))
sketch3.addConstraint(Sketcher.Constraint("Coincident", 18, 1, 19, 1))
sketch3.addConstraint(Sketcher.Constraint("Coincident", 19, 2, 20, 2))
sketch3.addConstraint(Sketcher.Constraint("Coincident", 23, 1, 24, 1))
sketch3.addConstraint(Sketcher.Constraint("Coincident", 24, 2, 25, 1))
sketch3.addConstraint(Sketcher.Constraint("Coincident", 25, 2, 26, 2))
sketch3.addConstraint(Sketcher.Constraint("Coincident", 30, 1, 31, 1))
sketch3.addConstraint(Sketcher.Constraint("Coincident", 31, 2, 32, 1))
sketch3.addConstraint(Sketcher.Constraint("Coincident", 32, 2, 33, 1))
sketch3.addConstraint(Sketcher.Constraint("Coincident", 33, 2, 34, 2))
sketch3.addConstraint(Sketcher.Constraint("Coincident", 38, 1, 39, 1))
sketch3.addConstraint(Sketcher.Constraint("Coincident", 39, 2, 40, 1))
sketch3.addConstraint(Sketcher.Constraint("Coincident", 40, 2, 41, 2))
sketch3.addConstraint(Sketcher.Constraint("Coincident", 45, 1, 46, 1))
sketch3.addConstraint(Sketcher.Constraint("Coincident", 46, 2, 47, 2))
sketch3.addConstraint(Sketcher.Constraint("Coincident", 50, 1, 51, 1))
sketch3.addConstraint(Sketcher.Constraint("Coincident", 51, 2, 52, 1))
sketch3.addConstraint(Sketcher.Constraint("Coincident", 52, 2, 53, 2))
sketch3.addConstraint(Sketcher.Constraint("Coincident", 66, 2, 67, 1))
sketch3.addConstraint(Sketcher.Constraint("Coincident", 67, 2, 68, 1))
sketch3.addConstraint(Sketcher.Constraint("Coincident", 68, 2, 69, 1))
sketch3.addConstraint(Sketcher.Constraint("Coincident", 69, 2, 70, 1))
sketch3.addConstraint(Sketcher.Constraint("Coincident", 70, 2, 71, 2))
sketch3.addConstraint(Sketcher.Constraint("Coincident", 71, 1, 72, 1))
sketch3.addConstraint(Sketcher.Constraint("Coincident", 72, 2, 73, 1))
sketch3.addConstraint(Sketcher.Constraint("Coincident", 73, 2, 74, 1))
sketch3.addConstraint(Sketcher.Constraint("Coincident", 74, 2, 75, 1))
sketch3.addConstraint(Sketcher.Constraint("Coincident", 75, 2, 76, 1))
sketch3.addConstraint(Sketcher.Constraint("Coincident", 76, 2, 66, 1))
sketch3.addConstraint(Sketcher.Constraint("Horizontal", 4))
sketch3.addConstraint(Sketcher.Constraint("Vertical", 5))
sketch3.addConstraint(Sketcher.Constraint("Horizontal", 6))
sketch3.addConstraint(Sketcher.Constraint("Horizontal", 12))
sketch3.addConstraint(Sketcher.Constraint("Vertical", 13))
sketch3.addConstraint(Sketcher.Constraint("Vertical", 24))
sketch3.addConstraint(Sketcher.Constraint("Horizontal", 25))
sketch3.addConstraint(Sketcher.Constraint("Horizontal", 31))
sketch3.addConstraint(Sketcher.Constraint("Vertical", 32))
sketch3.addConstraint(Sketcher.Constraint("Horizontal", 33))
sketch3.addConstraint(Sketcher.Constraint("Horizontal", 39))
sketch3.addConstraint(Sketcher.Constraint("Vertical", 40))
sketch3.addConstraint(Sketcher.Constraint("Vertical", 51))
sketch3.addConstraint(Sketcher.Constraint("Horizontal", 52))
sketch3.addConstraint(Sketcher.Constraint("Horizontal", 66))
sketch3.addConstraint(Sketcher.Constraint("Vertical", 67))
sketch3.addConstraint(Sketcher.Constraint("Horizontal", 68))
sketch3.addConstraint(Sketcher.Constraint("Vertical", 69))
sketch3.addConstraint(Sketcher.Constraint("Horizontal", 70))
sketch3.addConstraint(Sketcher.Constraint("Vertical", 72))
sketch3.addConstraint(Sketcher.Constraint("Horizontal", 73))
sketch3.addConstraint(Sketcher.Constraint("Vertical", 74))
sketch3.addConstraint(Sketcher.Constraint("Horizontal", 75))
sketch3.addConstraint(Sketcher.Constraint("Vertical", 76))
sketch3.addConstraint(Sketcher.Constraint("Horizontal", 68, 2, 74, 2))
sketch3.addConstraint(Sketcher.Constraint("Vertical", 72, 2, 75, 2))
sketch3.addConstraint(Sketcher.Constraint("Equal", 4, 31))
sketch3.addConstraint(Sketcher.Constraint("DistanceX", 6, 1, 6, 2, 0.017))
sketch3.addConstraint(Sketcher.Constraint("DistanceX", 70, 2, 70, 1, 0.031))
sketch3.addConstraint(Sketcher.Constraint("DistanceY", 74, 2, 74, 1, 0.201))
sketch3.addConstraint(Sketcher.Constraint("DistanceY", 66, 2, -1, 1, 0.15))
sketch3.addConstraint(Sketcher.Constraint("DistanceX", 66, 1, 66, 2, 0.1463))
sketch3.addConstraint(Sketcher.Constraint("DistanceX", 73, 1, 73, 2, 0.0544))
sketch3.addConstraint(Sketcher.Constraint("DistanceY", 67, 1, 67, 2, 0.0306))
pad3 = doc.addObject("PartDesign::Pad", "Pad002")
body.addObject(pad3)
pad3.Profile = sketch3
pad3.Length = 0.02
doc.recompute()

fillet = doc.addObject("PartDesign::Fillet", "Fillet")
body.addObject(fillet)
fillet.Base = (pad3, edges_at(pad3, [
    (-0.775, 0, 0.225),
    (-0.775, 0, -0.225),
    (0.775, 0, 0.225),
    (0.775, 0, -0.225),
]))
fillet.Radius = 0.02

doc.recompute()
